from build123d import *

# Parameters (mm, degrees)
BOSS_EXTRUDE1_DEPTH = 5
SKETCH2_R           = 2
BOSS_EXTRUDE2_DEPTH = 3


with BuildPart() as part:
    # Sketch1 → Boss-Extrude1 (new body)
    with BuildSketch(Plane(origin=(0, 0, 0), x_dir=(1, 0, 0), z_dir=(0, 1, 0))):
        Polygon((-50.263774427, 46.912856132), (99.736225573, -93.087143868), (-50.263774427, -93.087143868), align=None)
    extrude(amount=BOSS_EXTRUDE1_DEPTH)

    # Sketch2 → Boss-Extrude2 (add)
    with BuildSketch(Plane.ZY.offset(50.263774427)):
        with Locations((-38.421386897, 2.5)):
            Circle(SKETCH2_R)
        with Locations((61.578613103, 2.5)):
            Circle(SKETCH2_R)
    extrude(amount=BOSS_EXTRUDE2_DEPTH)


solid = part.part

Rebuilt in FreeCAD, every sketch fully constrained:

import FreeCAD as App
import Part
import Sketcher


def add_polygon(sketch, points):
    """Adds a closed chain of lines whose ends are joined by coincident constraints."""
    first, n = sketch.GeometryCount, len(points)
    for a, b in zip(points, points[1:] + points[:1]):
        sketch.addGeometry(Part.LineSegment(App.Vector(*a, 0), App.Vector(*b, 0)), False)
    for i in range(n):
        sketch.addConstraint(Sketcher.Constraint("Coincident", first + i, 2, first + (i + 1) % n, 1))

doc = App.newDocument("Part")
body = doc.addObject("PartDesign::Body", "Body")

# Sketch on XZ plane
sketch1 = body.newObject("Sketcher::SketchObject", "Sketch")
sketch1.AttachmentSupport = (doc.getObject("XZ_Plane"), [""])
sketch1.MapMode = "FlatFace"
add_polygon(sketch1, [(100, 93), (-50, -47), (-50, 93)])  # lines 0-2
sketch1.addConstraint([
    Sketcher.Constraint("Vertical", 1),
    Sketcher.Constraint("Horizontal", 2),
    Sketcher.Constraint("DistanceX", 2, 1, 2, 2, 150.0),
    Sketcher.Constraint("DistanceY", 1, 1, 1, 2, 140.0),
    Sketcher.Constraint("DistanceX", 0, 2, -1, 1, 50.263774),
    Sketcher.Constraint("DistanceY", 0, 2, -1, 1, 46.912856),
])
pad1 = body.newObject("PartDesign::Pad", "Pad")
pad1.Profile = sketch1
pad1.Length = 5
pad1.Reversed = True

# Sketch on YZ plane
sketch2 = body.newObject("Sketcher::SketchObject", "Sketch001")
sketch2.AttachmentSupport = (doc.getObject("YZ_Plane"), [""])
sketch2.MapMode = "FlatFace"
sketch2.AttachmentOffset = App.Placement(App.Vector(0, 0, -50.263774), App.Rotation())
sketch2.addGeometry([
    Part.Circle(App.Vector(2.5, -38.4, 0), App.Vector(0, 0, 1), 2),
    Part.Circle(App.Vector(2.5, 61.6, 0), App.Vector(0, 0, 1), 2),
], False)
sketch2.addConstraint([
    Sketcher.Constraint("Equal", 0, 1),
    Sketcher.Constraint("Vertical", 0, 3, 1, 3),
    Sketcher.Constraint("Diameter", 0, 4.0),
    Sketcher.Constraint("DistanceY", 0, 3, 1, 3, 100.0),
    Sketcher.Constraint("DistanceX", -1, 1, 0, 3, 2.5),
    Sketcher.Constraint("DistanceY", 0, 3, -1, 1, 38.421387),
])
pad2 = body.newObject("PartDesign::Pad", "Pad001")
pad2.Profile = sketch2
pad2.Length = 3
pad2.Reversed = True

doc.recompute()
